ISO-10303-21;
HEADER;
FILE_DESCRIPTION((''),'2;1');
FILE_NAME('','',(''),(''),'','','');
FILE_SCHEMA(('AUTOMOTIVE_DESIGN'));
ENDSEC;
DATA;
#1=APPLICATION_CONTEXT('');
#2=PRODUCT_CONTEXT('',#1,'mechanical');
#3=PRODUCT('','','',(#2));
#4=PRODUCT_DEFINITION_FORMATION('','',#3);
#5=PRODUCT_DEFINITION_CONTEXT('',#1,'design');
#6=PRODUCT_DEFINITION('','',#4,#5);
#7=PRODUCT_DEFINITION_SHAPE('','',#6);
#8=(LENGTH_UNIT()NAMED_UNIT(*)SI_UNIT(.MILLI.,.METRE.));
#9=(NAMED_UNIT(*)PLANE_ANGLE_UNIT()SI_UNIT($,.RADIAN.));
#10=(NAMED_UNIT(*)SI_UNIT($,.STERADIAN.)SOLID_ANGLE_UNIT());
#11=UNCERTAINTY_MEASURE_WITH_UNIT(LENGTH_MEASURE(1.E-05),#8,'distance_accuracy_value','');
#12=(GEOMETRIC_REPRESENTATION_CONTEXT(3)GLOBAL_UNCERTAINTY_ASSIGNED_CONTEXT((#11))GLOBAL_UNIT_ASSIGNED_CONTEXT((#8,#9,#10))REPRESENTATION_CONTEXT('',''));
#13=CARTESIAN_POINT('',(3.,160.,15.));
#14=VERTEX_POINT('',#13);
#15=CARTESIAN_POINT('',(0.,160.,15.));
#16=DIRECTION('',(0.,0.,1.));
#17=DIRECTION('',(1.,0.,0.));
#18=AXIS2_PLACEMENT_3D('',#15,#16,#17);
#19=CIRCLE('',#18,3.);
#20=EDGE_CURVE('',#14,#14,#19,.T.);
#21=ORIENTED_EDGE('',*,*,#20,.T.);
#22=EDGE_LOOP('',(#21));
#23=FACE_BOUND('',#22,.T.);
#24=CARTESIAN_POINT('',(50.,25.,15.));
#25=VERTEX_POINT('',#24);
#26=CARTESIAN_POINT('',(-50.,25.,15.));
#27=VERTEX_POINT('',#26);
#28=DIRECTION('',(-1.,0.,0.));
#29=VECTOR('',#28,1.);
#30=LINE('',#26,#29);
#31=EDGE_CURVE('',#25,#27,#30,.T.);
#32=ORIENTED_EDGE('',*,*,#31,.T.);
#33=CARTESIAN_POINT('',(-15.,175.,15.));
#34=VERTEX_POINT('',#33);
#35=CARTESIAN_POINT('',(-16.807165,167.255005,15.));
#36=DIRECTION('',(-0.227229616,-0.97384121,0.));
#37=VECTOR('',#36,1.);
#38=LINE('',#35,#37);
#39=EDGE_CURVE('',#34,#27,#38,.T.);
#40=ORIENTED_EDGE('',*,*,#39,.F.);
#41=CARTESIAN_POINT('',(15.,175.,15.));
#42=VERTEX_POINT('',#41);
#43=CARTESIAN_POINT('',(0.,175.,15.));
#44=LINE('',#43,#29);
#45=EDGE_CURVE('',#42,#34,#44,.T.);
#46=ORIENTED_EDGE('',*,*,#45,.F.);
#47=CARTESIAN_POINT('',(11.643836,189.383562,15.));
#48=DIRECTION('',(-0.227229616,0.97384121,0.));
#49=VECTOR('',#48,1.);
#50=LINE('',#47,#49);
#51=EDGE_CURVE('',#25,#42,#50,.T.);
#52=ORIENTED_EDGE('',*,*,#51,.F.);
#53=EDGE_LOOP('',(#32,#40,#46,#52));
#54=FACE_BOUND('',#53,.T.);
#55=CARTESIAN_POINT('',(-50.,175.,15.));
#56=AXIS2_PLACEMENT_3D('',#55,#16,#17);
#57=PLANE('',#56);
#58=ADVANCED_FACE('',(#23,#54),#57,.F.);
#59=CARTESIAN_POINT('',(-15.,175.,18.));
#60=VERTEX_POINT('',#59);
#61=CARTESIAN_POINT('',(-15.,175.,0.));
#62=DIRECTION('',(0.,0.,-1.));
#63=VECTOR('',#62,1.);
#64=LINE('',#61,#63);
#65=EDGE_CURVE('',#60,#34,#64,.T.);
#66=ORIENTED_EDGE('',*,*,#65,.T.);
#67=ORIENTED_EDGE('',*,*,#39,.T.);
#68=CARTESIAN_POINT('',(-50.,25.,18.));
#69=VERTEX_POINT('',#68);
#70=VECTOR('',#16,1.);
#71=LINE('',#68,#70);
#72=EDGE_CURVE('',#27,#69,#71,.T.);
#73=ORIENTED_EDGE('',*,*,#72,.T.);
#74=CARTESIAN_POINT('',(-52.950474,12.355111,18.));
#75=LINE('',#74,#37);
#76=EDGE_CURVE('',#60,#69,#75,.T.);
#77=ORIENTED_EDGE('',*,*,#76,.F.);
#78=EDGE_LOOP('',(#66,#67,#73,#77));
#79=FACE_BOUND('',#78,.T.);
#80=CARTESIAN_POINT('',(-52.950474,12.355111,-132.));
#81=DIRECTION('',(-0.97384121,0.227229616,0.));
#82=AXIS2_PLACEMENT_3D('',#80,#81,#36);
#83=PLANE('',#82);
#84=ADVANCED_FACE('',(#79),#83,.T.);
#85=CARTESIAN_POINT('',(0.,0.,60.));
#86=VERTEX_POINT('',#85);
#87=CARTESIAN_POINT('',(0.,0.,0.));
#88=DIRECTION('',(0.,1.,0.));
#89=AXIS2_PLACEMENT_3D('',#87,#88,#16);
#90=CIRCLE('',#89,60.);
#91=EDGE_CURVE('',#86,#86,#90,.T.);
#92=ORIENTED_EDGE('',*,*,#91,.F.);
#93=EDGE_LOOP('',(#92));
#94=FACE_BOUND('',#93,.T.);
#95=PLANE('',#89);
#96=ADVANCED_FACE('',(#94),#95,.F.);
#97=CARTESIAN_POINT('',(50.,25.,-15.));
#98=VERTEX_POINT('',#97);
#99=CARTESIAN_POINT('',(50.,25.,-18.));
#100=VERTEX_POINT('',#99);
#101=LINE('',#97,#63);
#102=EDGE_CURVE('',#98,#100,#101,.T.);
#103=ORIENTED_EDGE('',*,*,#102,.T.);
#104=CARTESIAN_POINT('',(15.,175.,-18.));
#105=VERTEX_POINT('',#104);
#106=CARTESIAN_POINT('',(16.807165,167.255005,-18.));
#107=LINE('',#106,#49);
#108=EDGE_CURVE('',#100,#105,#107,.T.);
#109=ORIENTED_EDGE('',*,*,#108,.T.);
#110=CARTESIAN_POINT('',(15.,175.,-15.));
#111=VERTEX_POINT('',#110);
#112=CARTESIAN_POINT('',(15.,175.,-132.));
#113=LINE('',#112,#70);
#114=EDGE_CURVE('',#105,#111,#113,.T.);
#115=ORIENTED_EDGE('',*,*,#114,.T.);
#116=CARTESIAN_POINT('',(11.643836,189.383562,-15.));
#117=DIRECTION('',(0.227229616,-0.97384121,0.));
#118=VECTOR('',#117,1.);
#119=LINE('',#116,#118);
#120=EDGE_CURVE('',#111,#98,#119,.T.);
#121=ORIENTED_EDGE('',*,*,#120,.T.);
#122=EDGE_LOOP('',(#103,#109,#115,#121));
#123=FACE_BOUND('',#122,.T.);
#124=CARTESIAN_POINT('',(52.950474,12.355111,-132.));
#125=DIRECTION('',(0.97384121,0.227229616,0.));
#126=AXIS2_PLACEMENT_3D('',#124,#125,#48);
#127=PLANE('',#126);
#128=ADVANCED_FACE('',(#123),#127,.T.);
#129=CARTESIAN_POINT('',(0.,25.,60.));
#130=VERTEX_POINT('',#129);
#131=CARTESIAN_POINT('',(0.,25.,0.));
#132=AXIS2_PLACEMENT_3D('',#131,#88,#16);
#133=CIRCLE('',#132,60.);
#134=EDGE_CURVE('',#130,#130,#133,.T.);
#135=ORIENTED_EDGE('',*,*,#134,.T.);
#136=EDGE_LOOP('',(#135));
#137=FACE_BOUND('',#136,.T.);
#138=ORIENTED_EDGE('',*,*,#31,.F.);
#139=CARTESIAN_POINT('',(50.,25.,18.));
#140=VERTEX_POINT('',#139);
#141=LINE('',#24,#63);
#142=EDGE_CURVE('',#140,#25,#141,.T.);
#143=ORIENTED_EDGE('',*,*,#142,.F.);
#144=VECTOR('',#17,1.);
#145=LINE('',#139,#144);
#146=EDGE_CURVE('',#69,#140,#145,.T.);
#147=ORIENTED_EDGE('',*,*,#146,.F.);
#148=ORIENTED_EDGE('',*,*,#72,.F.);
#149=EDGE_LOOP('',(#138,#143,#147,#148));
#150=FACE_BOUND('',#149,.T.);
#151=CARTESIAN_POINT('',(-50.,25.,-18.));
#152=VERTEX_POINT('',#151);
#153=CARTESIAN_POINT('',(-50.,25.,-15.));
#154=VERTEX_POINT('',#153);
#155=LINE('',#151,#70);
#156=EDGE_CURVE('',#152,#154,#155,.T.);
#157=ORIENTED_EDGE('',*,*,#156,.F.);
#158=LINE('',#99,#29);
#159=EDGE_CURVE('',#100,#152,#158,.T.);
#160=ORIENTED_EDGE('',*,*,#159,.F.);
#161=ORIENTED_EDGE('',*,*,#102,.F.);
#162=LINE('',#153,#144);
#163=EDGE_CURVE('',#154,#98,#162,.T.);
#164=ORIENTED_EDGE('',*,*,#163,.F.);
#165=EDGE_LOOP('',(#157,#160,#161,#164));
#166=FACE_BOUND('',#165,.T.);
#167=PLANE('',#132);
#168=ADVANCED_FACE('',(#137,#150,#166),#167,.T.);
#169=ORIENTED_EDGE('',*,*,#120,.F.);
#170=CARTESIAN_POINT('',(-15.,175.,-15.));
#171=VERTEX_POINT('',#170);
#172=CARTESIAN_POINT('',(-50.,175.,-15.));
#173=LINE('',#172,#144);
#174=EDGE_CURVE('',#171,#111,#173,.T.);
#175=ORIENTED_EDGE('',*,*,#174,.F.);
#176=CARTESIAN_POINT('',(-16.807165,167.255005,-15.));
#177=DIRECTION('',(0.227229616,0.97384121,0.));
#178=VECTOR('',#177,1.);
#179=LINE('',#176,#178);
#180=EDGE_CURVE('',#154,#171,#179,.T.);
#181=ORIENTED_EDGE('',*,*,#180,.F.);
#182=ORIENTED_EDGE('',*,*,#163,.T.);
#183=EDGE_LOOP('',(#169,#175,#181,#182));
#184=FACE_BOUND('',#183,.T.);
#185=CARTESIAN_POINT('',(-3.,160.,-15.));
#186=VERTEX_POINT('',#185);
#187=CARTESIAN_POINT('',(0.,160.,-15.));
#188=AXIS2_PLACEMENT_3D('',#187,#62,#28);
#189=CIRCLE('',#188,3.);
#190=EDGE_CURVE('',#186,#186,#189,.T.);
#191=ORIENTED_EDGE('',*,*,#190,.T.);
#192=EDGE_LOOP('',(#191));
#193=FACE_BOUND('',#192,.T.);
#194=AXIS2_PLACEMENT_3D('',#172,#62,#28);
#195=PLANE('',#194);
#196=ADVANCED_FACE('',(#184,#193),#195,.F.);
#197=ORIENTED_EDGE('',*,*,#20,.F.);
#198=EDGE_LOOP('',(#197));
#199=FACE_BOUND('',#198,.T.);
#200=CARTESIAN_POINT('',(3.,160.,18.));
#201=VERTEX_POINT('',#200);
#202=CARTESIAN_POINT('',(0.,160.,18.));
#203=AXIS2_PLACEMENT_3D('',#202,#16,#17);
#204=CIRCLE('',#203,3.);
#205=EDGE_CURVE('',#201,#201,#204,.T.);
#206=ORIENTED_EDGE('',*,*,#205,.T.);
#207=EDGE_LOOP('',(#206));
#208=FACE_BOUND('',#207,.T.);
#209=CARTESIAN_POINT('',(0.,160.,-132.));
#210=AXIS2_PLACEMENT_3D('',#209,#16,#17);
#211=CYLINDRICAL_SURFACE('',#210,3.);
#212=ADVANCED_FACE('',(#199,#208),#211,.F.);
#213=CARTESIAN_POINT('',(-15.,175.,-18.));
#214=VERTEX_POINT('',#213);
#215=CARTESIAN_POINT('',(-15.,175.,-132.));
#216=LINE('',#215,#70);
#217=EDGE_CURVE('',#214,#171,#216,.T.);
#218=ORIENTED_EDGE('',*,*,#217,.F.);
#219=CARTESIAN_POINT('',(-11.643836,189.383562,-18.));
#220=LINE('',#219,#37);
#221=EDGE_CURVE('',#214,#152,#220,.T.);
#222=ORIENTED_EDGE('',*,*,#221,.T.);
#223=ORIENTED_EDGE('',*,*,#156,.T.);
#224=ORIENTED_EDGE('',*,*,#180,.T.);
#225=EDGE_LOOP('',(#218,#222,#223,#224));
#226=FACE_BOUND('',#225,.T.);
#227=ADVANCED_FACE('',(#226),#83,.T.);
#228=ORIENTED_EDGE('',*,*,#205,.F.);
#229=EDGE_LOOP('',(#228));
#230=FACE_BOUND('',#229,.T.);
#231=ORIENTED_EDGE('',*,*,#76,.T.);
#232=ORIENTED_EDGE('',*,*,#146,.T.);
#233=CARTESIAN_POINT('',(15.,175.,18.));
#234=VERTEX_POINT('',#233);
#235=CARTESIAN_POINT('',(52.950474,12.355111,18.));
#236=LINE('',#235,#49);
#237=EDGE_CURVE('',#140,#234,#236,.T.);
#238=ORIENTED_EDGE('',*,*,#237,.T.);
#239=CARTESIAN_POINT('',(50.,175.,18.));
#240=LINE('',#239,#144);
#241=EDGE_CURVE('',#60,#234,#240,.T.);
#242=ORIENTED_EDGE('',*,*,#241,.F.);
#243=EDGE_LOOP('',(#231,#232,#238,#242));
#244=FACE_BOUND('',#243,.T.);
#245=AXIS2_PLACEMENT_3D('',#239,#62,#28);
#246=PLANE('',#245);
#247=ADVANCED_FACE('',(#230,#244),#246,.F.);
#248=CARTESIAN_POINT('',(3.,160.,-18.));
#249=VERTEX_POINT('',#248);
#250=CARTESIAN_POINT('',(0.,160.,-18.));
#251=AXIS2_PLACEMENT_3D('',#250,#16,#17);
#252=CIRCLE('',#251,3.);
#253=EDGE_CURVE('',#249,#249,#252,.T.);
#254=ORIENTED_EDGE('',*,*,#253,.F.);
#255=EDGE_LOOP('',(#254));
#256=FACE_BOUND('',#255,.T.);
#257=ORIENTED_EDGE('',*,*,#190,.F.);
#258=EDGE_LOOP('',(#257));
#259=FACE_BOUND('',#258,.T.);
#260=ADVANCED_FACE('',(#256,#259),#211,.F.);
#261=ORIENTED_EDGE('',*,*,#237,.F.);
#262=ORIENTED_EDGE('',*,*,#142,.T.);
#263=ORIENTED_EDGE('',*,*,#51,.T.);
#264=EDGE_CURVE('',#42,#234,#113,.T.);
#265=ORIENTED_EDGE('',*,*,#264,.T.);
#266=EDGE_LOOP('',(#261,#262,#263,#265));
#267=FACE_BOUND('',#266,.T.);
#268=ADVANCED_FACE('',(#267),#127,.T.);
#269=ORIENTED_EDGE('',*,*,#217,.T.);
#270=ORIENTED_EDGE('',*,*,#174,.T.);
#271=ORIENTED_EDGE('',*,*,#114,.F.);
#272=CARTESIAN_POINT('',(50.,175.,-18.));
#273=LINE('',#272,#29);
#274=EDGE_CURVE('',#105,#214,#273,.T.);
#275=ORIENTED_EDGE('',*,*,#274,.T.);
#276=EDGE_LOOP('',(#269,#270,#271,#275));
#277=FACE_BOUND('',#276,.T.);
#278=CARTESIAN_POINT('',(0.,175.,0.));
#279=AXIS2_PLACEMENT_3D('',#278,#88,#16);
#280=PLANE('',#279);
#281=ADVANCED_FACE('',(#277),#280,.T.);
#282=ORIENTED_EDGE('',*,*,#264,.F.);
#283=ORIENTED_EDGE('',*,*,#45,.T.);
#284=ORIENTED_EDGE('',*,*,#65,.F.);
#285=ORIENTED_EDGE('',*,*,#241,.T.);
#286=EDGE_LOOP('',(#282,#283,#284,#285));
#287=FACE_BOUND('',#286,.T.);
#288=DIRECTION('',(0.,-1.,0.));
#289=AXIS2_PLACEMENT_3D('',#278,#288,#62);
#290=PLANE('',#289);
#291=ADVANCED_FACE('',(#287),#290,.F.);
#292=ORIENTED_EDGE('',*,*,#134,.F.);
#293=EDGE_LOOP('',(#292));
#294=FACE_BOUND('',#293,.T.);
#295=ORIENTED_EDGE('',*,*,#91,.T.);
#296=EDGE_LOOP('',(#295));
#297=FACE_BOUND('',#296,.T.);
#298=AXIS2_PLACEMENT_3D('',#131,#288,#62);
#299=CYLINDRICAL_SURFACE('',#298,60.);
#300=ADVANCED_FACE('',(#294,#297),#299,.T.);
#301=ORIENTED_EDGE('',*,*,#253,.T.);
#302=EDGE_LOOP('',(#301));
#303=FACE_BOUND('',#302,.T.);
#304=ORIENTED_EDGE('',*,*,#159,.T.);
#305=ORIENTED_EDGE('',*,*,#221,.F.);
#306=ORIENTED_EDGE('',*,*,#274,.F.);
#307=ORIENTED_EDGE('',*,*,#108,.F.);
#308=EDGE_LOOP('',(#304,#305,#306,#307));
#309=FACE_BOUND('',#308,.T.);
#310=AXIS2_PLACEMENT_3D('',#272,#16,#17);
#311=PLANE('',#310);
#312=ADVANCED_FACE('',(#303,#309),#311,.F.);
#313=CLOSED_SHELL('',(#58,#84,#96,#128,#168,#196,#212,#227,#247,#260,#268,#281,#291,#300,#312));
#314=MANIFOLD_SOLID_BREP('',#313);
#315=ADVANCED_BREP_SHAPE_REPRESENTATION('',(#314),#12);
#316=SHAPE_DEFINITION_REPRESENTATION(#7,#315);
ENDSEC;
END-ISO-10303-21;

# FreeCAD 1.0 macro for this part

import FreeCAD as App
import Part
import Sketcher
Q = App.Units.Quantity

doc = App.newDocument("Part")
body = doc.addObject("PartDesign::Body", "Body")

# Sketch on XZ plane
sketch1 = body.newObject("Sketcher::SketchObject", "Sketch")
sketch1.AttachmentSupport = (doc.getObject("XZ_Plane"), [""])
sketch1.MapMode = "FlatFace"
sketch1.addGeometry(Part.Circle(App.Vector(0, 0, 0), App.Vector(0, 0, 1), 60), False)
sketch1.addConstraint(Sketcher.Constraint("Coincident", 0, 3, -1, 1))
sketch1.addConstraint(Sketcher.Constraint("Diameter", 0, Q("120 mm")))
pad1 = body.newObject("PartDesign::Pad", "Pad")
pad1.Profile = sketch1
pad1.Length = 25
pad1.Reversed = True

# Sketch on XZ plane
sketch2 = body.newObject("Sketcher::SketchObject", "Sketch001")
sketch2.AttachmentSupport = (doc.getObject("XZ_Plane"), [""])
sketch2.MapMode = "FlatFace"
sketch2.AttachmentOffset = App.Placement(App.Vector(0, 0, -25), App.Rotation())
sketch2.addGeometry(Part.LineSegment(App.Vector(-50, -18, 0), App.Vector(-50, -15, 0)), False)
sketch2.addGeometry(Part.LineSegment(App.Vector(-50, -15, 0), App.Vector(50, -15, 0)), False)
sketch2.addGeometry(Part.LineSegment(App.Vector(50, -15, 0), App.Vector(50, -18, 0)), False)
sketch2.addGeometry(Part.LineSegment(App.Vector(50, -18, 0), App.Vector(-50, -18, 0)), False)
sketch2.addGeometry(Part.LineSegment(App.Vector(50, 15, 0), App.Vector(-50, 15, 0)), False)
sketch2.addGeometry(Part.LineSegment(App.Vector(-50, 15, 0), App.Vector(-50, 18, 0)), False)
sketch2.addGeometry(Part.LineSegment(App.Vector(-50, 18, 0), App.Vector(50, 18, 0)), False)
sketch2.addGeometry(Part.LineSegment(App.Vector(50, 18, 0), App.Vector(50, 15, 0)), False)
sketch2.addConstraint(Sketcher.Constraint("Coincident", 0, 2, 1, 1))
sketch2.addConstraint(Sketcher.Constraint("Coincident", 1, 2, 2, 1))
sketch2.addConstraint(Sketcher.Constraint("Coincident", 2, 2, 3, 1))
sketch2.addConstraint(Sketcher.Constraint("Coincident", 3, 2, 0, 1))
sketch2.addConstraint(Sketcher.Constraint("Coincident", 4, 2, 5, 1))
sketch2.addConstraint(Sketcher.Constraint("Coincident", 5, 2, 6, 1))
sketch2.addConstraint(Sketcher.Constraint("Coincident", 6, 2, 7, 1))
sketch2.addConstraint(Sketcher.Constraint("Coincident", 7, 2, 4, 1))
sketch2.addConstraint(Sketcher.Constraint("Vertical", 0))
sketch2.addConstraint(Sketcher.Constraint("Horizontal", 1))
sketch2.addConstraint(Sketcher.Constraint("Vertical", 2))
sketch2.addConstraint(Sketcher.Constraint("Horizontal", 3))
sketch2.addConstraint(Sketcher.Constraint("Horizontal", 4))
sketch2.addConstraint(Sketcher.Constraint("Vertical", 5))
sketch2.addConstraint(Sketcher.Constraint("Horizontal", 6))
sketch2.addConstraint(Sketcher.Constraint("Vertical", 7))
sketch2.addConstraint(Sketcher.Constraint("Symmetric", 1, 2, 4, 2, -1, 1))
sketch2.addConstraint(Sketcher.Constraint("Symmetric", 3, 2, 6, 2, -1, 1))
sketch2.addConstraint(Sketcher.Constraint("Vertical", 3, 2, 4, 2))
sketch2.addConstraint(Sketcher.Constraint("DistanceX", 1, 1, 1, 2, Q("100 mm")))
sketch2.addConstraint(Sketcher.Constraint("DistanceY", 0, 1, 0, 2, Q("3 mm")))
sketch2.addConstraint(Sketcher.Constraint("DistanceY", 0, 2, -1, 1, Q("15 mm")))
pad2 = body.newObject("PartDesign::Pad", "Pad001")
pad2.Profile = sketch2
pad2.Length = 150
pad2.Reversed = True

# Sketch on XY plane
sketch3 = body.newObject("Sketcher::SketchObject", "Sketch002")
sketch3.AttachmentSupport = (doc.getObject("XY_Plane"), [""])
sketch3.MapMode = "FlatFace"
sketch3.AttachmentOffset = App.Placement(App.Vector(0, 0, 18), App.Rotation())
sketch3.addGeometry(Part.LineSegment(App.Vector(-15, 175, 0), App.Vector(-50, 175, 0)), False)
sketch3.addGeometry(Part.LineSegment(App.Vector(-50, 175, 0), App.Vector(-50, 25, 0)), False)
sketch3.addGeometry(Part.LineSegment(App.Vector(-50, 25, 0), App.Vector(-15, 175, 0)), False)
sketch3.addGeometry(Part.LineSegment(App.Vector(15, 175, 0), App.Vector(50, 25, 0)), False)
sketch3.addGeometry(Part.LineSegment(App.Vector(50, 25, 0), App.Vector(50, 175, 0)), False)
sketch3.addGeometry(Part.LineSegment(App.Vector(50, 175, 0), App.Vector(15, 175, 0)), False)
sketch3.addConstraint(Sketcher.Constraint("Coincident", 0, 2, 1, 1))
sketch3.addConstraint(Sketcher.Constraint("Coincident", 1, 2, 2, 1))
sketch3.addConstraint(Sketcher.Constraint("Coincident", 2, 2, 0, 1))
sketch3.addConstraint(Sketcher.Constraint("Coincident", 3, 2, 4, 1))
sketch3.addConstraint(Sketcher.Constraint("Coincident", 4, 2, 5, 1))
sketch3.addConstraint(Sketcher.Constraint("Coincident", 5, 2, 3, 1))
sketch3.addConstraint(Sketcher.Constraint("Horizontal", 0))
sketch3.addConstraint(Sketcher.Constraint("Vertical", 1))
sketch3.addConstraint(Sketcher.Constraint("Vertical", 4))
sketch3.addConstraint(Sketcher.Constraint("Horizontal", 5))
sketch3.addConstraint(Sketcher.Constraint("Symmetric", 1, 2, 3, 2, -2))
sketch3.addConstraint(Sketcher.Constraint("Symmetric", 2, 2, 5, 2, -2))
sketch3.addConstraint(Sketcher.Constraint("DistanceX", 0, 2, 0, 1, Q("35 mm")))
sketch3.addConstraint(Sketcher.Constraint("DistanceY", 1, 2, 1, 1, Q("150 mm")))
sketch3.addConstraint(Sketcher.Constraint("DistanceX", 0, 2, -1, 1, Q("50 mm")))
sketch3.addConstraint(Sketcher.Constraint("DistanceY", -1, 1, 0, 2, Q("175 mm")))
pocket1 = body.newObject("PartDesign::Pocket", "Pocket")
pocket1.Profile = sketch3
pocket1.Length = 150

# Sketch on XY plane
sketch4 = body.newObject("Sketcher::SketchObject", "Sketch003")
sketch4.AttachmentSupport = (doc.getObject("XY_Plane"), [""])
sketch4.MapMode = "FlatFace"
sketch4.AttachmentOffset = App.Placement(App.Vector(0, 0, 18), App.Rotation())
sketch4.addGeometry(Part.Circle(App.Vector(0, 160, 0), App.Vector(0, 0, 1), 3), False)
sketch4.addConstraint(Sketcher.Constraint("PointOnObject", 0, 3, -2))
sketch4.addConstraint(Sketcher.Constraint("Diameter", 0, Q("6 mm")))
sketch4.addConstraint(Sketcher.Constraint("DistanceY", -1, 1, 0, 3, Q("160 mm")))
pocket2 = body.newObject("PartDesign::Pocket", "Pocket001")
pocket2.Profile = sketch4
pocket2.Length = 150

doc.recompute()
